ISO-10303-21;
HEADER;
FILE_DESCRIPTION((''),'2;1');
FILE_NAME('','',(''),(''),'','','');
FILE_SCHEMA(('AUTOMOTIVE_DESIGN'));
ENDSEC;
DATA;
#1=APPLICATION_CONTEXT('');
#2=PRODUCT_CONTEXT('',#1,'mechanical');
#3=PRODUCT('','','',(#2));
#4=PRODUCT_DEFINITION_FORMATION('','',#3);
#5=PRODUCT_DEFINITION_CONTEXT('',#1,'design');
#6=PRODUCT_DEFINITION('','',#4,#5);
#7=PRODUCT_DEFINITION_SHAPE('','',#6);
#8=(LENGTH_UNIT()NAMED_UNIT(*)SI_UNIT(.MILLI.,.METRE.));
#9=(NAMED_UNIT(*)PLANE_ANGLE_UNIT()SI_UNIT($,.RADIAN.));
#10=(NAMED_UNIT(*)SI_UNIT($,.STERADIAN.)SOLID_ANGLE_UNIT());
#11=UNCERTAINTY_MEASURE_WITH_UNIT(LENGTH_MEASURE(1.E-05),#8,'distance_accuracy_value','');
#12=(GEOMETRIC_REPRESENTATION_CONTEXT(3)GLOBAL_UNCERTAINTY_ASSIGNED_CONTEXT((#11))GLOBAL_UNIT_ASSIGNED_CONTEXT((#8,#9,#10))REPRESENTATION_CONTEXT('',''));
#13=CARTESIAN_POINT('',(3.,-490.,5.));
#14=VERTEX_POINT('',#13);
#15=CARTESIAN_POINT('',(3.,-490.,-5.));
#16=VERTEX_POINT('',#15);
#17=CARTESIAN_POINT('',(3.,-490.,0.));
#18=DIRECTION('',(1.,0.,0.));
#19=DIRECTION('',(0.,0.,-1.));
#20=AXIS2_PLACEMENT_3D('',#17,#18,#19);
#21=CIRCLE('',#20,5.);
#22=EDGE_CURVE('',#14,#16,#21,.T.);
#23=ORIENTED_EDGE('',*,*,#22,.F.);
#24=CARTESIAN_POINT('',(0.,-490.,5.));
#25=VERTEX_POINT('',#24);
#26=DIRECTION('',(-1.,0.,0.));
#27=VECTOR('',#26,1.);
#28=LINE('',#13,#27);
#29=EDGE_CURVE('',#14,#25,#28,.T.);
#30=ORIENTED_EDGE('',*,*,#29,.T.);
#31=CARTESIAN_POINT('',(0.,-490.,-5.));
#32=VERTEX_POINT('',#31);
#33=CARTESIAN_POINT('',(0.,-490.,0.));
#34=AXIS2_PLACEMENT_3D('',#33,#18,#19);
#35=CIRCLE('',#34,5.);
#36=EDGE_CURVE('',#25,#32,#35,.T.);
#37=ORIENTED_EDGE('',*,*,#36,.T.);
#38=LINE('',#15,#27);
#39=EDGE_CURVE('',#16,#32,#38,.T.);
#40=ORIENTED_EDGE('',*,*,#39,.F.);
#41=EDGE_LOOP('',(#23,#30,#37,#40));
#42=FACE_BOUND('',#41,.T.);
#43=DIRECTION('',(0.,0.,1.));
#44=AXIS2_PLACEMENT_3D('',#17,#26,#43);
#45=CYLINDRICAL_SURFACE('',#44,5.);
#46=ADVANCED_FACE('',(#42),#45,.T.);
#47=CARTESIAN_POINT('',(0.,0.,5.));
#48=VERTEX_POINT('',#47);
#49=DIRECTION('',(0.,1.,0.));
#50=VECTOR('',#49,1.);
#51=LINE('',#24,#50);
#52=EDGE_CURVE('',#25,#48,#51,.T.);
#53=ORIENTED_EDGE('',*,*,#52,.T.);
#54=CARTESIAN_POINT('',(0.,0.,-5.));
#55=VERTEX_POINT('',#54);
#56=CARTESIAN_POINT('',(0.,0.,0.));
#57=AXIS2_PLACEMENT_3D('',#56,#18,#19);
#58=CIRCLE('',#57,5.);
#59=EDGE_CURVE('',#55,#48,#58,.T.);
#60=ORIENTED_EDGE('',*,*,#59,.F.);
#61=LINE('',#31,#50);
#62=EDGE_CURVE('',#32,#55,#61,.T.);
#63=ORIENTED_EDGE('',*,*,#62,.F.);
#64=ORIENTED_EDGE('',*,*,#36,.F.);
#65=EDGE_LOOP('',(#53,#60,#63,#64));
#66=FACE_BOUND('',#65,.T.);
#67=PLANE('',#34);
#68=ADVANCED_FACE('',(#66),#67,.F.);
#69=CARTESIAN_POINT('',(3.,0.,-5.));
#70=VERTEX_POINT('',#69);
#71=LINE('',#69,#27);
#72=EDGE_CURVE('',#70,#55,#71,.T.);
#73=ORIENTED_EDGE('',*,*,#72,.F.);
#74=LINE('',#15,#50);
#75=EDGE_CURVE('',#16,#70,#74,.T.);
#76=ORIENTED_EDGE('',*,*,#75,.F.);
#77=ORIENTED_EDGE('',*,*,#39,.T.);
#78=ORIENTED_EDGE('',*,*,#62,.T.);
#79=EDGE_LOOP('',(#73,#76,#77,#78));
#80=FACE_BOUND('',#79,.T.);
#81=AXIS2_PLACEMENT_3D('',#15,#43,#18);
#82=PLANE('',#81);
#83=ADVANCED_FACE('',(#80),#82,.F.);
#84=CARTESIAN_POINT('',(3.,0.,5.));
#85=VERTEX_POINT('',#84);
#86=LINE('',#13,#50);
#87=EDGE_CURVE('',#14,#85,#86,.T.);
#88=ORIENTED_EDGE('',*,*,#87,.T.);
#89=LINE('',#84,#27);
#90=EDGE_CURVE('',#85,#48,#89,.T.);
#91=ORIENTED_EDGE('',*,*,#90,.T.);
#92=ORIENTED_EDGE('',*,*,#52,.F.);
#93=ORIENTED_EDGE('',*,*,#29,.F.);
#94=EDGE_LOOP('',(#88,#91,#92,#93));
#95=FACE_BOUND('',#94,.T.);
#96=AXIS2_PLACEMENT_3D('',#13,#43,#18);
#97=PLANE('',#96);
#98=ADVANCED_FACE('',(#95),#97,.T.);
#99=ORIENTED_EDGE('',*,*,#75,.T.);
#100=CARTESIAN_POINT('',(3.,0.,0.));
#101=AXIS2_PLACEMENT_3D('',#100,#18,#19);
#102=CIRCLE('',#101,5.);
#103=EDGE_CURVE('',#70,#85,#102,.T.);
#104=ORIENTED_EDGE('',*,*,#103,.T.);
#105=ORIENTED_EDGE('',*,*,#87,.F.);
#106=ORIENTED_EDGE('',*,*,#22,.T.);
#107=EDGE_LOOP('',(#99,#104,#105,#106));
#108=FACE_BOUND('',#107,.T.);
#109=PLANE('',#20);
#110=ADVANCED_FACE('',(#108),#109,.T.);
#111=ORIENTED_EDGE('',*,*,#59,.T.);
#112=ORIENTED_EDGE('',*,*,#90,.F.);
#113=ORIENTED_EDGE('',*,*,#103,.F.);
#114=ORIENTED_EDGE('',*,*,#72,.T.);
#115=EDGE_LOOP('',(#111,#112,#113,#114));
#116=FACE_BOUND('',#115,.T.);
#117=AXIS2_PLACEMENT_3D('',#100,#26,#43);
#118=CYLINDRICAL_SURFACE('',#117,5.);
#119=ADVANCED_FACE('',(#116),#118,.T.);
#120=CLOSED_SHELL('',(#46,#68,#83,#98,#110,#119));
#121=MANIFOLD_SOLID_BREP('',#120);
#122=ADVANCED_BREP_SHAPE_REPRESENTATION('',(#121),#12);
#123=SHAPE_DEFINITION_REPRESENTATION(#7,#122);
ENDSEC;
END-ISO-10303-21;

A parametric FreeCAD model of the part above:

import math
import FreeCAD as App
import Part
import Sketcher

V = App.Vector

doc = App.newDocument("Part")
body = doc.addObject("PartDesign::Body", "Body")

# Sketch on YZ plane
sketch1 = body.newObject("Sketcher::SketchObject", "Sketch")
sketch1.AttachmentSupport = (doc.getObject("YZ_Plane"), [""])
sketch1.MapMode = "FlatFace"
sketch1.addGeometry([
    Part.LineSegment(V(0, 5, 0), V(-490, 5, 0)),
    Part.ArcOfCircle(Part.Circle(V(-490, 0, 0), V(0, 0, 1), 5), math.radians(90), math.radians(270)),
    Part.LineSegment(V(-490, -5, 0), V(0, -5, 0)),
    Part.ArcOfCircle(Part.Circle(V(0, 0, 0), V(0, 0, 1), 5), math.radians(-90), math.radians(90)),
], False)
sketch1.addConstraint([
    Sketcher.Constraint("Tangent", 0, 2, 1, 1),
    Sketcher.Constraint("Tangent", 1, 2, 2, 1),
    Sketcher.Constraint("Tangent", 2, 2, 3, 1),
    Sketcher.Constraint("Tangent", 3, 2, 0, 1),
    Sketcher.Constraint("Horizontal", 0),
    Sketcher.Constraint("Horizontal", 2),
    Sketcher.Constraint("Coincident", 3, 3, -1, 1),
    Sketcher.Constraint("Radius", 1, 5.0),
    Sketcher.Constraint("DistanceX", 0, 2, 0, 1, 490.0),
])
pad1 = body.newObject("PartDesign::Pad", "Pad")
pad1.Profile = sketch1
pad1.Length = 3

doc.recompute()
